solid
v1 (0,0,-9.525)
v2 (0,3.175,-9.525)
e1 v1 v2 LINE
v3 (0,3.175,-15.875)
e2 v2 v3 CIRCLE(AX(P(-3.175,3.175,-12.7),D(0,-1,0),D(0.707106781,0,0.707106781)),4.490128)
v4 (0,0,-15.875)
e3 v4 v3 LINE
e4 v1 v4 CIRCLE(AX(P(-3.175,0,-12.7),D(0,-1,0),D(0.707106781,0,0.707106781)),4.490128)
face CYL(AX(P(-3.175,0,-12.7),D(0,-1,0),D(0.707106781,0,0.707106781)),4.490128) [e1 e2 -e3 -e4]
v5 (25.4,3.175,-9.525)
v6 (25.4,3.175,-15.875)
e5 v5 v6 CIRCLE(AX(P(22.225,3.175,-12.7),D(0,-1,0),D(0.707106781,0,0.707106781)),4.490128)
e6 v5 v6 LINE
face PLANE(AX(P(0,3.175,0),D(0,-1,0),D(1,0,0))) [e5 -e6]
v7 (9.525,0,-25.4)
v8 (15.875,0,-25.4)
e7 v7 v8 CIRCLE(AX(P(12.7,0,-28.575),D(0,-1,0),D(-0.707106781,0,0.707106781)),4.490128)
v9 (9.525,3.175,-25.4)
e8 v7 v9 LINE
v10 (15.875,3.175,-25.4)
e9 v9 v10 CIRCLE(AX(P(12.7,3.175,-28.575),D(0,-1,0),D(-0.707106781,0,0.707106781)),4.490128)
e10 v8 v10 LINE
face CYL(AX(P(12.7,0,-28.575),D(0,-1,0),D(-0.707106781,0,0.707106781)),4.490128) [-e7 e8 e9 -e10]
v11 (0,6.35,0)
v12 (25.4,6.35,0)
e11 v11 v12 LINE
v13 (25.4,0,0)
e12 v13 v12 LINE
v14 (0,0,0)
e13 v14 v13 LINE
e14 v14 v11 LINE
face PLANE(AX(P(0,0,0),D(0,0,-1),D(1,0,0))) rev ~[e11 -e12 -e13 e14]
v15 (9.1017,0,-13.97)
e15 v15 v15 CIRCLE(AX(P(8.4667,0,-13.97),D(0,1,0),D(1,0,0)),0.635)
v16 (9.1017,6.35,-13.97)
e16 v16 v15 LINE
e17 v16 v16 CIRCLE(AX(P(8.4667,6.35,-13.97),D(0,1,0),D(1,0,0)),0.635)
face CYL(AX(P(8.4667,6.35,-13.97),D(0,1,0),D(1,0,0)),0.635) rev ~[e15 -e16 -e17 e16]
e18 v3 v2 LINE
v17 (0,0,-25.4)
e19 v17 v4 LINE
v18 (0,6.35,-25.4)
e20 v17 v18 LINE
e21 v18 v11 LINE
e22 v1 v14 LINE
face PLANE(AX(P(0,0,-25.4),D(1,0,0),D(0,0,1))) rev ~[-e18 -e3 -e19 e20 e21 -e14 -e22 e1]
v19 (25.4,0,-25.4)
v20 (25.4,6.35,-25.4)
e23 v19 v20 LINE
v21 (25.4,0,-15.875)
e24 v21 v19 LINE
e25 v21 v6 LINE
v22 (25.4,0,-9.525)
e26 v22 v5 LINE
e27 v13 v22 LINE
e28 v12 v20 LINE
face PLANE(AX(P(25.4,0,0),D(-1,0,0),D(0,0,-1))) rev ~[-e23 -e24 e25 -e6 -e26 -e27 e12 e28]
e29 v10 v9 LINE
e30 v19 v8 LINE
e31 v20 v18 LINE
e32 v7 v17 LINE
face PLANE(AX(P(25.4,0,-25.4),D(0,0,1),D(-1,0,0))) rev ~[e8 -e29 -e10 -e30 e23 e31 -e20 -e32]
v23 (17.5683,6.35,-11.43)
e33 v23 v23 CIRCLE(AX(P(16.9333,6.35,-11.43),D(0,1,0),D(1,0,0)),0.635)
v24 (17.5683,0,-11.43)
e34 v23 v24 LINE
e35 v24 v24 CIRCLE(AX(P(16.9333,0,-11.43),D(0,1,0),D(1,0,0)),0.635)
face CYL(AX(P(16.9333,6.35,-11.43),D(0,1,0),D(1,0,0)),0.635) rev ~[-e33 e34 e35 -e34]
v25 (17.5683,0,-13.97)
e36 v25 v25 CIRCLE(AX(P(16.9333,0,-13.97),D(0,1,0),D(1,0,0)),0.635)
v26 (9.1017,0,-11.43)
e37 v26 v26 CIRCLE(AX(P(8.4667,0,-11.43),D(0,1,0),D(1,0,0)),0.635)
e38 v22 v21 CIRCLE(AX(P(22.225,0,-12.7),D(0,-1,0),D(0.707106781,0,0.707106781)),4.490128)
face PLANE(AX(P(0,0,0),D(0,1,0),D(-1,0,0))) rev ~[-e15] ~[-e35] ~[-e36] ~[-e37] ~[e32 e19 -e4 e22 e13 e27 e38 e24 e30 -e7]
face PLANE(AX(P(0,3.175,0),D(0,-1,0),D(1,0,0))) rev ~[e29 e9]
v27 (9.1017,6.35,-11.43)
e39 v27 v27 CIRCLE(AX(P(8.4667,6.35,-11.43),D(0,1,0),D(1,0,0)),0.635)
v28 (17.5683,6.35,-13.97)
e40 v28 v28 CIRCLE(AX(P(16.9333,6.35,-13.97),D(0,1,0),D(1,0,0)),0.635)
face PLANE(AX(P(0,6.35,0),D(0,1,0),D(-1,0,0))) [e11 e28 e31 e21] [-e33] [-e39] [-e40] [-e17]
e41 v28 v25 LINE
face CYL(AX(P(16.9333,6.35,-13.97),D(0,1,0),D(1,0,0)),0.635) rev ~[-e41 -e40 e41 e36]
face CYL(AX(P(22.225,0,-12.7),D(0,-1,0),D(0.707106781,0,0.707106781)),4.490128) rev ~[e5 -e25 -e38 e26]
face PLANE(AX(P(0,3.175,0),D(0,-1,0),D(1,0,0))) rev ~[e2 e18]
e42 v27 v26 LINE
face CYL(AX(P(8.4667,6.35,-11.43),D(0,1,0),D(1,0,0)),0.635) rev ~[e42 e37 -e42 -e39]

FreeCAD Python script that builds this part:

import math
import FreeCAD as App
import Part
import Sketcher
from FreeCAD import Vector
Q = App.Units.Quantity


def add_polygon(sketch, points):
    """Adds a closed chain of lines whose ends are joined by coincident constraints."""
    first, n = sketch.GeometryCount, len(points)
    for a, b in zip(points, points[1:] + points[:1]):
        sketch.addGeometry(Part.LineSegment(App.Vector(*a, 0), App.Vector(*b, 0)), False)
    for i in range(n):
        sketch.addConstraint(Sketcher.Constraint("Coincident", first + i, 2, first + (i + 1) % n, 1))

doc = App.newDocument("Part")
body = doc.addObject("PartDesign::Body", "Body")

sketch1 = body.newObject("Sketcher::SketchObject", "Sketch")
sketch1.AttachmentSupport = (doc.getObject("XZ_Plane"), [""])
sketch1.MapMode = "FlatFace"
add_polygon(sketch1, [(0, -25), (0, 0), (25, 0), (25, -25)])
sketch1.addConstraint([
    Sketcher.Constraint("Vertical", 0),
    Sketcher.Constraint("Horizontal", 1),
    Sketcher.Constraint("Vertical", 2),
    Sketcher.Constraint("Horizontal", 3),
    Sketcher.Constraint("Coincident", 0, 2, -1, 1),
    Sketcher.Constraint("Equal", 3, 0),
    Sketcher.Constraint("DistanceX", 1, 1, 1, 2, Q("1 in")),
])
pad1 = body.newObject("PartDesign::Pad", "Pad")
pad1.Profile = sketch1
pad1.Length = Q("0.25 in")
pad1.Reversed = True

sketch2 = body.newObject("Sketcher::SketchObject", "Sketch001")
sketch2.AttachmentSupport = (doc.getObject("XZ_Plane"), [""])
sketch2.MapMode = "FlatFace"
sketch2.AttachmentOffset = App.Placement(Vector(0, 0, -0.25 * 25.4), App.Rotation())
sketch2.addGeometry([
    Part.Circle(Vector(8.5, -14, 0), Vector(0, 0, 1), 0.6),
    Part.Circle(Vector(16.9, -14, 0), Vector(0, 0, 1), 0.6),
    Part.Circle(Vector(16.9, -11.4, 0), Vector(0, 0, 1), 0.6),
    Part.Circle(Vector(8.5, -11.4, 0), Vector(0, 0, 1), 0.6),
], False)
sketch2.addConstraint([
    Sketcher.Constraint("Equal", 0, 1),
    Sketcher.Constraint("Equal", 1, 2),
    Sketcher.Constraint("Equal", 2, 3),
    Sketcher.Constraint("Horizontal", 0, 3, 1, 3),
    Sketcher.Constraint("Horizontal", 2, 3, 3, 3),
    Sketcher.Constraint("Vertical", 1, 3, 2, 3),
    Sketcher.Constraint("Vertical", 0, 3, 3, 3),
    Sketcher.Constraint("Diameter", 0, Q("0.05 in")),
    Sketcher.Constraint("DistanceY", 1, 3, 2, 3, Q("0.1 in")),
    Sketcher.Constraint("DistanceY", 2, 3, -1, 1, Q("0.45 in")),
    Sketcher.Constraint("DistanceX", -1, 1, 0, 3, 8.4667),
    Sketcher.Constraint("DistanceX", 0, 3, 1, 3, 8.4666),
])
pocket1 = body.newObject("PartDesign::Pocket", "Pocket")
pocket1.Profile = sketch2
pocket1.Length = Q("0.25 in")
pocket1.Reversed = True

sketch3 = body.newObject("Sketcher::SketchObject", "Sketch002")
sketch3.AttachmentSupport = (doc.getObject("XZ_Plane"), [""])
sketch3.MapMode = "FlatFace"
sketch3.addGeometry([
    Part.ArcOfCircle(Part.Circle(Vector(12.7, -28.6, 0), Vector(0, 0, 1), 4.5), math.radians(135), math.radians(405)),
    Part.LineSegment(Vector(15.9, -25.4, 0), Vector(9.5, -25.4, 0)),
], False)
sketch3.addConstraint([
    Sketcher.Constraint("Coincident", 0, 1, 1, 2),
    Sketcher.Constraint("Coincident", 1, 1, 0, 2),
    Sketcher.Constraint("Horizontal", 1),
    Sketcher.Constraint("DistanceX", 1, 2, 1, 1, Q("0.25 in")),
    Sketcher.Constraint("DistanceX", -1, 1, 0, 1, Q("0.375 in")),
    Sketcher.Constraint("DistanceY", 0, 1, -1, 1, Q("1 in")),
    Sketcher.Constraint("Radius", 0, 4.4901),
])
pad2 = body.newObject("PartDesign::Pad", "Pad001")
pad2.Profile = sketch3
pad2.Length = Q("0.125 in")
pad2.Reversed = True

sketch4 = body.newObject("Sketcher::SketchObject", "Sketch003")
sketch4.AttachmentSupport = (doc.getObject("XZ_Plane"), [""])
sketch4.MapMode = "FlatFace"
sketch4.addGeometry([
    Part.LineSegment(Vector(25.4, -15.9, 0), Vector(25.4, -9.5, 0)),
    Part.ArcOfCircle(Part.Circle(Vector(22.2, -12.7, 0), Vector(0, 0, 1), 4.5), math.radians(45), math.radians(315)),
], False)
sketch4.addConstraint([
    Sketcher.Constraint("Coincident", 0, 1, 1, 2),
    Sketcher.Constraint("Coincident", 1, 1, 0, 2),
    Sketcher.Constraint("Vertical", 0),
    Sketcher.Constraint("DistanceY", 0, 1, 0, 2, Q("0.25 in")),
    Sketcher.Constraint("DistanceY", 1, 1, -1, 1, Q("0.375 in")),
    Sketcher.Constraint("DistanceX", -1, 1, 0, 1, Q("1 in")),
    Sketcher.Constraint("Radius", 1, 4.4901),
])
pocket2 = body.newObject("PartDesign::Pocket", "Pocket001")
pocket2.Profile = sketch4
pocket2.Length = Q("0.125 in")

sketch5 = body.newObject("Sketcher::SketchObject", "Sketch004")
sketch5.AttachmentSupport = (doc.getObject("XZ_Plane"), [""])
sketch5.MapMode = "FlatFace"
sketch5.addGeometry([
    Part.ArcOfCircle(Part.Circle(Vector(-3.2, -12.7, 0), Vector(0, 0, 1), 4.5), math.radians(45), math.radians(315)),
    Part.LineSegment(Vector(0, -15.9, 0), Vector(0, -9.5, 0)),
], False)
sketch5.addConstraint([
    Sketcher.Constraint("Coincident", 0, 1, 1, 2),
    Sketcher.Constraint("Coincident", 1, 1, 0, 2),
    Sketcher.Constraint("Vertical", 1),
    Sketcher.Constraint("PointOnObject", 0, 1, -2),
    Sketcher.Constraint("DistanceY", 1, 1, 1, 2, Q("0.25 in")),
    Sketcher.Constraint("DistanceY", 0, 1, -1, 1, Q("0.375 in")),
    Sketcher.Constraint("Radius", 0, 4.4901),
])
pad3 = body.newObject("PartDesign::Pad", "Pad002")
pad3.Profile = sketch5
pad3.Length = Q("0.125 in")
pad3.Reversed = True

doc.recompute()
